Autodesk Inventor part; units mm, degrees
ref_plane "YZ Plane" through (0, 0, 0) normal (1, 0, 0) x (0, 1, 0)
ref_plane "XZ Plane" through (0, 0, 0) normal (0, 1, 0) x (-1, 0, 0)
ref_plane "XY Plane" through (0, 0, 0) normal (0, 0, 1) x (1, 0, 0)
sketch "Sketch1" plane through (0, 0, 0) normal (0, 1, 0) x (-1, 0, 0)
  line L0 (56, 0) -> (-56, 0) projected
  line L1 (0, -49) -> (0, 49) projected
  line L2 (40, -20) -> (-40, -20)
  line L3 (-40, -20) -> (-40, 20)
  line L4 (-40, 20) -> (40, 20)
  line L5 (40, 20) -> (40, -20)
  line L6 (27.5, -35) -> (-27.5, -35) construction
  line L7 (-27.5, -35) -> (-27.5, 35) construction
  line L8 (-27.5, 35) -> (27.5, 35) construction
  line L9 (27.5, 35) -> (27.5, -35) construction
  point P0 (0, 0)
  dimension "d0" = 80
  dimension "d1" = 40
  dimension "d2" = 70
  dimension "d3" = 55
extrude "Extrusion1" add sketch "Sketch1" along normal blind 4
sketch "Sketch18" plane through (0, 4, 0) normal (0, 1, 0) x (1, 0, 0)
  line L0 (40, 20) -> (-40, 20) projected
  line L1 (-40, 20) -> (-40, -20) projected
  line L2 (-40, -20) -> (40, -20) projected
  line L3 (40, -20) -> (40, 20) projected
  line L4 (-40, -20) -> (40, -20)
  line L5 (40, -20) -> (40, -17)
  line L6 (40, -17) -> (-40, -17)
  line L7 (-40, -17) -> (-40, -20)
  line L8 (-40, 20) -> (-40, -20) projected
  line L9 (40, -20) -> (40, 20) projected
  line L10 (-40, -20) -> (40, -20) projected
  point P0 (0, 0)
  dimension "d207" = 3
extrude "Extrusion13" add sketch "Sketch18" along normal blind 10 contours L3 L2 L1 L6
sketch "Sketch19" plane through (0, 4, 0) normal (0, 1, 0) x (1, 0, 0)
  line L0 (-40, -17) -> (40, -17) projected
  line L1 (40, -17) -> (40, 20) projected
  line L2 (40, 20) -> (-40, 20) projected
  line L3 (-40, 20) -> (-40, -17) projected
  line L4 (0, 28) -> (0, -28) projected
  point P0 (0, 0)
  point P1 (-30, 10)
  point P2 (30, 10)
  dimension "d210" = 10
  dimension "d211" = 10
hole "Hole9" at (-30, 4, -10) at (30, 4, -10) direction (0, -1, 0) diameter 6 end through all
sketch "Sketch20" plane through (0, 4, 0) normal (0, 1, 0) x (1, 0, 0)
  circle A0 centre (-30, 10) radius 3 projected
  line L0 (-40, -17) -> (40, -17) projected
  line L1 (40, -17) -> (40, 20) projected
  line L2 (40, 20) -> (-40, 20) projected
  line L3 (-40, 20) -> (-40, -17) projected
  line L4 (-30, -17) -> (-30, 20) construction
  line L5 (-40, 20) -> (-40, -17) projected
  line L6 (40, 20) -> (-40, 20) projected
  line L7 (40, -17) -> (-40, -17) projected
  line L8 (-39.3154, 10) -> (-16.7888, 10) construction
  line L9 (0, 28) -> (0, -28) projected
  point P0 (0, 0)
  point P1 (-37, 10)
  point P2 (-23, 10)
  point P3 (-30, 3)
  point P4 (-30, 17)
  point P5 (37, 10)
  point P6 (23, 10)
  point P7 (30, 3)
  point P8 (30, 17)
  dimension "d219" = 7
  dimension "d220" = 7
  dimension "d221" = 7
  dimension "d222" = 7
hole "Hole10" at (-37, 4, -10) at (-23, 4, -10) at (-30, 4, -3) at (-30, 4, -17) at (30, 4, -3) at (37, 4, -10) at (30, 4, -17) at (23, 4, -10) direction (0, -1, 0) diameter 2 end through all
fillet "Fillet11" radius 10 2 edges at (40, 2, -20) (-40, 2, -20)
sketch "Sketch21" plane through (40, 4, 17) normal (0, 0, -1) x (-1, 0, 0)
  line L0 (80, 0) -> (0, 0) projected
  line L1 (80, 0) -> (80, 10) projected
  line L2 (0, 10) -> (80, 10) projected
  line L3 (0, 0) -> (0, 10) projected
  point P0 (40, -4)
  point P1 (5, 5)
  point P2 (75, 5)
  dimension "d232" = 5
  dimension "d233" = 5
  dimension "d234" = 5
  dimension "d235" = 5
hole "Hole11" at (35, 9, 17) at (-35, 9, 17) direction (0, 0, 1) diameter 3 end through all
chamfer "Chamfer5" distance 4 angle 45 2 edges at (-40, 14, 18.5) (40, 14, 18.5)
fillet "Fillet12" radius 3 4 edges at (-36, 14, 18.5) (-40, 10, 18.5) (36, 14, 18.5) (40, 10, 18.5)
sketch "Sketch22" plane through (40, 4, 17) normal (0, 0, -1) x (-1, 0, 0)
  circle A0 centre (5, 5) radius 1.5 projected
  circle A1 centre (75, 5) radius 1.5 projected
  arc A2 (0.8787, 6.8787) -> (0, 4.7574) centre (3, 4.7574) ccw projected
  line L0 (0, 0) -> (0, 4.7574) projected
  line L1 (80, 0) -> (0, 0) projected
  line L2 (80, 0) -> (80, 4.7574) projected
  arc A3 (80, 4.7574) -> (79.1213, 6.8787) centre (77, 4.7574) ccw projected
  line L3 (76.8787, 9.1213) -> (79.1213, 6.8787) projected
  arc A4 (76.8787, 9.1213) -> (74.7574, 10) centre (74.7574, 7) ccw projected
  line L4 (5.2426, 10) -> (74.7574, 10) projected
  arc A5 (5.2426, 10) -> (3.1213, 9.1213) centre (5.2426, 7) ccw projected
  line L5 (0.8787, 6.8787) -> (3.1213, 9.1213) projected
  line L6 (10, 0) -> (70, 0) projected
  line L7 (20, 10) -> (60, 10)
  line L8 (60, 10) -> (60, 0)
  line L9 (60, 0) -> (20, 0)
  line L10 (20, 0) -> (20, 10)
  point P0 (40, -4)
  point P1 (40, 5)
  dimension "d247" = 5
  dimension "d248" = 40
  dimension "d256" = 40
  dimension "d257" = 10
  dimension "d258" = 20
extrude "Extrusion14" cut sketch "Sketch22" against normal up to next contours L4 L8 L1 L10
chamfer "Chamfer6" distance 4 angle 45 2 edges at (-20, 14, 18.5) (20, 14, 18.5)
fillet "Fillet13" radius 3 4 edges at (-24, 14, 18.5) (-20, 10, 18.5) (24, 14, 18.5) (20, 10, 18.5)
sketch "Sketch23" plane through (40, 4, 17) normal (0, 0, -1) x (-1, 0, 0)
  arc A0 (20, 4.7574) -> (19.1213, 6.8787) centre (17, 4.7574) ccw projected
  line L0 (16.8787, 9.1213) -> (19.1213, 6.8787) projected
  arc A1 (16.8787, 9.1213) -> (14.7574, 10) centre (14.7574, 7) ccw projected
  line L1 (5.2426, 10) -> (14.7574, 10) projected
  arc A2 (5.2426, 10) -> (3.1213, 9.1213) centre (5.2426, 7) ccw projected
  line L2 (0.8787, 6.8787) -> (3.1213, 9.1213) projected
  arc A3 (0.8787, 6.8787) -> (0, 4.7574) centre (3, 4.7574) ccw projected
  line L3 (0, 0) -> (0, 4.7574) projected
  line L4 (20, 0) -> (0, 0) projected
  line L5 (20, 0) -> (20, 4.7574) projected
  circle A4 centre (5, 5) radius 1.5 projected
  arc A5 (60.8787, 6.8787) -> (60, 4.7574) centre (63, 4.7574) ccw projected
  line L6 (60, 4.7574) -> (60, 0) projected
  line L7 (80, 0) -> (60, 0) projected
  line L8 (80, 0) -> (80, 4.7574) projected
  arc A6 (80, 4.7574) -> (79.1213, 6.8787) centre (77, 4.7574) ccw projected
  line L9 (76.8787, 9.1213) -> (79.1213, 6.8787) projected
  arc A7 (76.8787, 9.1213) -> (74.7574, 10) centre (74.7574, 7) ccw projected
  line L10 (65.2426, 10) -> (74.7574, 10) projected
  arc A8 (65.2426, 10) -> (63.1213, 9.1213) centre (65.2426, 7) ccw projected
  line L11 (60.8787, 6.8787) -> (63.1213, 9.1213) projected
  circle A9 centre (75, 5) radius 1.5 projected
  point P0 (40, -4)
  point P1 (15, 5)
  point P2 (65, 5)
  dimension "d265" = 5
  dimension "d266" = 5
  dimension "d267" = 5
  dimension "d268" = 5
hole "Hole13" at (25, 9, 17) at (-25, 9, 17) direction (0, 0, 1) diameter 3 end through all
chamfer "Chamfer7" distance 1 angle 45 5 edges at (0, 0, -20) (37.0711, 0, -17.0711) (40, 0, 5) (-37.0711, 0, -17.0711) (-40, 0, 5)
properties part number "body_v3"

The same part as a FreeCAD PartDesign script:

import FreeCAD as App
import Part
import Sketcher
from FreeCAD import Vector
Q = App.Units.Quantity


def edges_at(feature, points):
    """Names of the edges that pass closest to the given points."""
    edges = feature.Shape.Edges
    near = lambda p: min(range(len(edges)), key=lambda i: edges[i].distToShape(Part.Vertex(*p))[0])
    return sorted({f"Edge{near(p) + 1}" for p in points})


def add_polygon(sketch, points):
    """Adds a closed chain of lines whose ends are joined by coincident constraints."""
    first, n = sketch.GeometryCount, len(points)
    for a, b in zip(points, points[1:] + points[:1]):
        sketch.addGeometry(Part.LineSegment(App.Vector(*a, 0), App.Vector(*b, 0)), False)
    for i in range(n):
        sketch.addConstraint(Sketcher.Constraint("Coincident", first + i, 2, first + (i + 1) % n, 1))

doc = App.newDocument("Part")
body = doc.addObject("PartDesign::Body", "Body")

# Sketch on XZ plane
sketch1 = body.newObject("Sketcher::SketchObject", "Sketch")
sketch1.AttachmentSupport = (doc.getObject("XZ_Plane"), [""])
sketch1.MapMode = "FlatFace"
add_polygon(sketch1, [(-40, -20), (-40, 20), (40, 20), (40, -20)])  # lines 0-3
sketch1.addConstraint([
    Sketcher.Constraint("Vertical", 0),
    Sketcher.Constraint("Horizontal", 1),
    Sketcher.Constraint("Vertical", 2),
    Sketcher.Constraint("Horizontal", 3),
    Sketcher.Constraint("Symmetric", 0, 2, 2, 2, -1, 1),
    Sketcher.Constraint("DistanceX", 1, 1, 1, 2, Q("80 mm")),
    Sketcher.Constraint("DistanceY", 0, 1, 0, 2, Q("40 mm")),
])
pad1 = body.newObject("PartDesign::Pad", "Pad")
pad1.Profile = sketch1
pad1.Length = 4
pad1.Reversed = True

# Sketch on XZ plane
sketch2 = body.newObject("Sketcher::SketchObject", "Sketch001")
sketch2.AttachmentSupport = (doc.getObject("XZ_Plane"), [""])
sketch2.MapMode = "FlatFace"
sketch2.AttachmentOffset = App.Placement(Vector(0, 0, -4), App.Rotation())
add_polygon(sketch2, [(40, 20), (40, 17), (-40, 17), (-40, 20)])  # lines 0-3
sketch2.addConstraint([
    Sketcher.Constraint("Vertical", 0),
    Sketcher.Constraint("Horizontal", 1),
    Sketcher.Constraint("Vertical", 2),
    Sketcher.Constraint("Horizontal", 3),
    Sketcher.Constraint("DistanceY", 0, 2, 0, 1, Q("3 mm")),
    Sketcher.Constraint("DistanceX", 1, 2, 1, 1, Q("80 mm")),
    Sketcher.Constraint("DistanceX", -1, 1, 0, 2, Q("40 mm")),
    Sketcher.Constraint("DistanceY", -1, 1, 0, 2, Q("17 mm")),
])
pad2 = body.newObject("PartDesign::Pad", "Pad001")
pad2.Profile = sketch2
pad2.Length = 10
pad2.Reversed = True

# Sketch on XZ plane
sketch3 = body.newObject("Sketcher::SketchObject", "Sketch002")
sketch3.AttachmentSupport = (doc.getObject("XZ_Plane"), [""])
sketch3.MapMode = "FlatFace"
sketch3.AttachmentOffset = App.Placement(Vector(0, 0, -4), App.Rotation())
sketch3.addGeometry([
    Part.Circle(Vector(-30, -10, 0), Vector(0, 0, 1), 3),
    Part.Circle(Vector(30, -10, 0), Vector(0, 0, 1), 3),
], False)
sketch3.addConstraint([
    Sketcher.Constraint("Equal", 0, 1),
    Sketcher.Constraint("Symmetric", 0, 3, 1, 3, -2),
    Sketcher.Constraint("Diameter", 0, Q("6 mm")),
    Sketcher.Constraint("DistanceX", 0, 3, -1, 1, Q("30 mm")),
    Sketcher.Constraint("DistanceY", 0, 3, -1, 1, Q("10 mm")),
])
doc.recompute()
hole = body.newObject("PartDesign::Hole", "Hole")
hole.Profile = sketch3
hole.ThreadType = "None"
hole.Diameter = 6
hole.DepthType = "ThroughAll"
hole.Reversed = True

# Sketch on XZ plane
sketch4 = body.newObject("Sketcher::SketchObject", "Sketch003")
sketch4.AttachmentSupport = (doc.getObject("XZ_Plane"), [""])
sketch4.MapMode = "FlatFace"
sketch4.AttachmentOffset = App.Placement(Vector(0, 0, -4), App.Rotation())
sketch4.addGeometry([
    Part.Circle(Vector(-37, -10, 0), Vector(0, 0, 1), 1),  # 0
    Part.Circle(Vector(-23, -10, 0), Vector(0, 0, 1), 1),  # 1
    Part.Circle(Vector(-30, -3, 0), Vector(0, 0, 1), 1),  # 2
    Part.Circle(Vector(-30, -17, 0), Vector(0, 0, 1), 1),  # 3
    Part.Circle(Vector(30, -3, 0), Vector(0, 0, 1), 1),  # 4
    Part.Circle(Vector(37, -10, 0), Vector(0, 0, 1), 1),  # 5
    Part.Circle(Vector(30, -17, 0), Vector(0, 0, 1), 1),  # 6
    Part.Circle(Vector(23, -10, 0), Vector(0, 0, 1), 1),  # 7
], False)
sketch4.addConstraint([
    Sketcher.Constraint("Equal", 0, 1),
    Sketcher.Constraint("Equal", 1, 2),
    Sketcher.Constraint("Equal", 2, 3),
    Sketcher.Constraint("Equal", 3, 4),
    Sketcher.Constraint("Equal", 4, 5),
    Sketcher.Constraint("Equal", 5, 6),
    Sketcher.Constraint("Equal", 6, 7),
    Sketcher.Constraint("Symmetric", 2, 3, 4, 3, -2),
    Sketcher.Constraint("Symmetric", 0, 3, 5, 3, -2),
    Sketcher.Constraint("Symmetric", 3, 3, 6, 3, -2),
    Sketcher.Constraint("Symmetric", 1, 3, 7, 3, -2),
    Sketcher.Constraint("Horizontal", 0, 3, 1, 3),
    Sketcher.Constraint("Vertical", 2, 3, 3, 3),
    Sketcher.Constraint("Diameter", 0, Q("2 mm")),
    Sketcher.Constraint("DistanceX", 0, 3, -1, 1, Q("37 mm")),
    Sketcher.Constraint("DistanceY", 0, 3, -1, 1, Q("10 mm")),
    Sketcher.Constraint("DistanceX", 1, 3, -1, 1, Q("23 mm")),
    Sketcher.Constraint("DistanceX", 2, 3, -1, 1, Q("30 mm")),
    Sketcher.Constraint("DistanceY", 2, 3, -1, 1, Q("3 mm")),
    Sketcher.Constraint("DistanceY", 3, 3, -1, 1, Q("17 mm")),
])
doc.recompute()
hole2 = body.newObject("PartDesign::Hole", "Hole001")
hole2.Profile = sketch4
hole2.ThreadType = "None"
hole2.Diameter = 2
hole2.DepthType = "ThroughAll"
hole2.Reversed = True
doc.recompute()

fillet = body.newObject("PartDesign::Fillet", "Fillet")
fillet.Base = (hole2, edges_at(hole2, [(40, 2, -20), (-40, 2, -20)]))
fillet.Radius = 10

# Sketch on XY plane
sketch5 = body.newObject("Sketcher::SketchObject", "Sketch004")
sketch5.AttachmentSupport = (doc.getObject("XY_Plane"), [""])
sketch5.MapMode = "FlatFace"
sketch5.AttachmentOffset = App.Placement(Vector(0, 0, 17), App.Rotation())
sketch5.addGeometry([
    Part.Circle(Vector(35, 9, 0), Vector(0, 0, 1), 1.5),
    Part.Circle(Vector(-35, 9, 0), Vector(0, 0, 1), 1.5),
], False)
sketch5.addConstraint([
    Sketcher.Constraint("Equal", 0, 1),
    Sketcher.Constraint("Symmetric", 0, 3, 1, 3, -2),
    Sketcher.Constraint("Diameter", 0, Q("3 mm")),
    Sketcher.Constraint("DistanceX", -1, 1, 0, 3, Q("35 mm")),
    Sketcher.Constraint("DistanceY", -1, 1, 0, 3, Q("9 mm")),
])
doc.recompute()
hole3 = body.newObject("PartDesign::Hole", "Hole002")
hole3.Profile = sketch5
hole3.ThreadType = "None"
hole3.Diameter = 3
hole3.DepthType = "ThroughAll"
hole3.Reversed = True
doc.recompute()

chamfer = body.newObject("PartDesign::Chamfer", "Chamfer")
chamfer.Base = (hole3, edges_at(hole3, [(-40, 14, 18.5), (40, 14, 18.5)]))
chamfer.Size = 4
doc.recompute()

fillet2 = body.newObject("PartDesign::Fillet", "Fillet001")
fillet2.Base = (chamfer, edges_at(chamfer, [
    (-36, 14, 18.5),
    (-40, 10, 18.5),
    (36, 14, 18.5),
    (40, 10, 18.5),
]))
fillet2.Radius = 3

# Sketch on XY plane
sketch6 = body.newObject("Sketcher::SketchObject", "Sketch005")
sketch6.AttachmentSupport = (doc.getObject("XY_Plane"), [""])
sketch6.MapMode = "FlatFace"
sketch6.AttachmentOffset = App.Placement(Vector(0, 0, 17), App.Rotation())
add_polygon(sketch6, [(-20, 14), (20, 14), (20, 4), (-20, 4)])  # lines 0-3
sketch6.addConstraint([
    Sketcher.Constraint("Horizontal", 0),
    Sketcher.Constraint("Vertical", 1),
    Sketcher.Constraint("Horizontal", 2),
    Sketcher.Constraint("Vertical", 3),
    Sketcher.Constraint("DistanceX", 0, 1, 0, 2, Q("40 mm")),
    Sketcher.Constraint("DistanceY", 1, 2, 1, 1, Q("10 mm")),
    Sketcher.Constraint("DistanceX", -1, 1, 0, 2, Q("20 mm")),
    Sketcher.Constraint("DistanceY", -1, 1, 0, 2, Q("14 mm")),
])
pocket1 = body.newObject("PartDesign::Pocket", "Pocket")
pocket1.Profile = sketch6
pocket1.Type = "UpToFirst"
pocket1.Reversed = True
doc.recompute()

chamfer2 = body.newObject("PartDesign::Chamfer", "Chamfer001")
chamfer2.Base = (pocket1, edges_at(pocket1, [(-20, 14, 18.5), (20, 14, 18.5)]))
chamfer2.Size = 4
doc.recompute()

fillet3 = body.newObject("PartDesign::Fillet", "Fillet002")
fillet3.Base = (chamfer2, edges_at(chamfer2, [
    (-24, 14, 18.5),
    (-20, 10, 18.5),
    (24, 14, 18.5),
    (20, 10, 18.5),
]))
fillet3.Radius = 3

# Sketch on XY plane
sketch7 = body.newObject("Sketcher::SketchObject", "Sketch006")
sketch7.AttachmentSupport = (doc.getObject("XY_Plane"), [""])
sketch7.MapMode = "FlatFace"
sketch7.AttachmentOffset = App.Placement(Vector(0, 0, 17), App.Rotation())
sketch7.addGeometry([
    Part.Circle(Vector(25, 9, 0), Vector(0, 0, 1), 1.5),
    Part.Circle(Vector(-25, 9, 0), Vector(0, 0, 1), 1.5),
], False)
sketch7.addConstraint([
    Sketcher.Constraint("Equal", 0, 1),
    Sketcher.Constraint("Symmetric", 0, 3, 1, 3, -2),
    Sketcher.Constraint("Diameter", 0, Q("3 mm")),
    Sketcher.Constraint("DistanceX", -1, 1, 0, 3, Q("25 mm")),
    Sketcher.Constraint("DistanceY", -1, 1, 0, 3, Q("9 mm")),
])
doc.recompute()
hole4 = body.newObject("PartDesign::Hole", "Hole003")
hole4.Profile = sketch7
hole4.ThreadType = "None"
hole4.Diameter = 3
hole4.DepthType = "ThroughAll"
hole4.Reversed = True
doc.recompute()

chamfer3 = body.newObject("PartDesign::Chamfer", "Chamfer002")
chamfer3.Base = (hole4, edges_at(hole4, [
    (0, 0, -20),
    (37.071, 0, -17.071),
    (40, 0, 5),
    (-37.071, 0, -17.071),
    (-40, 0, 5),
]))
chamfer3.Size = 1

doc.recompute()
